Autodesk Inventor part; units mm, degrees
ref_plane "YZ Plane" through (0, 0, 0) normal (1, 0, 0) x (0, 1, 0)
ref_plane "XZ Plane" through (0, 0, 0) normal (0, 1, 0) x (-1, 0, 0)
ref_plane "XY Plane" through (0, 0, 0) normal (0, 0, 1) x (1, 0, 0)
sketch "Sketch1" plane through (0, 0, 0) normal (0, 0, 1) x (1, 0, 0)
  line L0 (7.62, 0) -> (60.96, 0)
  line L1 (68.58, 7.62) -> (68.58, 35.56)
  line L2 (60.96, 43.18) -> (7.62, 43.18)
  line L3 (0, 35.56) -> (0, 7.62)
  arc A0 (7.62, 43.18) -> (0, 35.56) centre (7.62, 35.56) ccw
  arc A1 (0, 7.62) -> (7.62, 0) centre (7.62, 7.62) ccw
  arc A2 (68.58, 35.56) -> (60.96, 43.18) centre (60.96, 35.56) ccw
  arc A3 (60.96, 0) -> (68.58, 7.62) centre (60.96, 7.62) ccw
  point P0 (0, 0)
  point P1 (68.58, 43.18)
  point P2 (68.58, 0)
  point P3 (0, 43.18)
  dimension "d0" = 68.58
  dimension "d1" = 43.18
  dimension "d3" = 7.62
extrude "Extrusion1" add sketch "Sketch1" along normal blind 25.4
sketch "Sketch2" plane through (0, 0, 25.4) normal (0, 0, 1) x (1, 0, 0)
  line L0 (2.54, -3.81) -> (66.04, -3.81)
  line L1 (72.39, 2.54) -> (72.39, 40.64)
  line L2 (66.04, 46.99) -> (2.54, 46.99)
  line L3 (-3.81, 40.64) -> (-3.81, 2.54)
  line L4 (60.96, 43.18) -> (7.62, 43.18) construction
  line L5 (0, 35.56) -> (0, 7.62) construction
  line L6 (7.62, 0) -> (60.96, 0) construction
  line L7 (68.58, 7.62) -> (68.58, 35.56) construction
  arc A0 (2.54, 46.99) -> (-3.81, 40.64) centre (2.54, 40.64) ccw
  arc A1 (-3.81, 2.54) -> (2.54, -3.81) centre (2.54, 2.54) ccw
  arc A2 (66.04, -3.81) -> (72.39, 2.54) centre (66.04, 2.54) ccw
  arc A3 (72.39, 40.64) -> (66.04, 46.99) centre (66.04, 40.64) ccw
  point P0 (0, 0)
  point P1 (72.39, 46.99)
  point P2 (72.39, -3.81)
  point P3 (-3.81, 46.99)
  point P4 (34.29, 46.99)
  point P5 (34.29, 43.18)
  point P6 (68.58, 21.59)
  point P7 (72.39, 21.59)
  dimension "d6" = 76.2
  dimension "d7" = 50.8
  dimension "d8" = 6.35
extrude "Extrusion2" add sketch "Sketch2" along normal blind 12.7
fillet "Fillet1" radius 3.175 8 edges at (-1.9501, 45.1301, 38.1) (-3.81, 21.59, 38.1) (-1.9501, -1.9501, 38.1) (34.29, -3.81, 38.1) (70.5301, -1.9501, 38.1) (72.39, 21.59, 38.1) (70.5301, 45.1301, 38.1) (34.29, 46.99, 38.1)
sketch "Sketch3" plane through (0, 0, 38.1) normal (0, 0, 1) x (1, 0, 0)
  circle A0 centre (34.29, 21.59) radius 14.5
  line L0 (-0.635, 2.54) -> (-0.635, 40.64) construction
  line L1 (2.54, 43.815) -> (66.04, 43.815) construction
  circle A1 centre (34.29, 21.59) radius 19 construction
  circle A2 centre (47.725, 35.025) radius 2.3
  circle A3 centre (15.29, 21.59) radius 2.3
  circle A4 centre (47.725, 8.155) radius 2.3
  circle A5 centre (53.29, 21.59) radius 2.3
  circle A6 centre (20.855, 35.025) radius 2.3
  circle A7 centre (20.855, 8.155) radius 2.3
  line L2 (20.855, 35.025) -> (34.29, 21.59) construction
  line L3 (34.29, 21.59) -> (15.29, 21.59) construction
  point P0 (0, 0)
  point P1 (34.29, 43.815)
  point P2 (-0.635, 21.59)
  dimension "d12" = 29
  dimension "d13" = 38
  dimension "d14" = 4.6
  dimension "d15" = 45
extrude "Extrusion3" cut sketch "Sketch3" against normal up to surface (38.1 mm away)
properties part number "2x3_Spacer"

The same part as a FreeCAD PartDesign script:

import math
import FreeCAD as App
import Part
import Sketcher
from FreeCAD import Vector
Q = App.Units.Quantity


def edges_at(feature, points):
    """Names of the edges that pass closest to the given points."""
    edges = feature.Shape.Edges
    near = lambda p: min(range(len(edges)), key=lambda i: edges[i].distToShape(Part.Vertex(*p))[0])
    return sorted({f"Edge{near(p) + 1}" for p in points})

doc = App.newDocument("Part")
body = doc.addObject("PartDesign::Body", "Body")

# Sketch on XY plane
sketch1 = doc.addObject("Sketcher::SketchObject", "Sketch")
body.addObject(sketch1)
sketch1.AttachmentSupport = (doc.XY_Plane, [""])
sketch1.MapMode = "FlatFace"
sketch1.addGeometry(Part.ArcOfCircle(Part.Circle(Vector(7.62, 7.62, 0), Vector(0, 0, 1), 7.62), math.radians(180), math.radians(270)), False)
sketch1.addGeometry(Part.LineSegment(Vector(7.62, 0, 0), Vector(60.96, 0, 0)), False)
sketch1.addGeometry(Part.ArcOfCircle(Part.Circle(Vector(60.96, 7.62, 0), Vector(0, 0, 1), 7.62), math.radians(-90), math.radians(0)), False)
sketch1.addGeometry(Part.LineSegment(Vector(68.58, 7.62, 0), Vector(68.58, 35.56, 0)), False)
sketch1.addGeometry(Part.ArcOfCircle(Part.Circle(Vector(60.96, 35.56, 0), Vector(0, 0, 1), 7.62), math.radians(0), math.radians(90)), False)
sketch1.addGeometry(Part.LineSegment(Vector(60.96, 43.18, 0), Vector(7.62, 43.18, 0)), False)
sketch1.addGeometry(Part.ArcOfCircle(Part.Circle(Vector(7.62, 35.56, 0), Vector(0, 0, 1), 7.62), math.radians(90), math.radians(180)), False)
sketch1.addGeometry(Part.LineSegment(Vector(0, 35.56, 0), Vector(0, 7.62, 0)), False)
sketch1.addConstraint(Sketcher.Constraint("Tangent", 0, 2, 1, 1))
sketch1.addConstraint(Sketcher.Constraint("Tangent", 1, 2, 2, 1))
sketch1.addConstraint(Sketcher.Constraint("Tangent", 2, 2, 3, 1))
sketch1.addConstraint(Sketcher.Constraint("Tangent", 3, 2, 4, 1))
sketch1.addConstraint(Sketcher.Constraint("Tangent", 4, 2, 5, 1))
sketch1.addConstraint(Sketcher.Constraint("Tangent", 5, 2, 6, 1))
sketch1.addConstraint(Sketcher.Constraint("Tangent", 6, 2, 7, 1))
sketch1.addConstraint(Sketcher.Constraint("Tangent", 7, 2, 0, 1))
sketch1.addConstraint(Sketcher.Constraint("Horizontal", 1))
sketch1.addConstraint(Sketcher.Constraint("Vertical", 3))
sketch1.addConstraint(Sketcher.Constraint("Horizontal", 5))
sketch1.addConstraint(Sketcher.Constraint("Vertical", 7))
sketch1.addConstraint(Sketcher.Constraint("Equal", 0, 2))
sketch1.addConstraint(Sketcher.Constraint("Equal", 2, 4))
sketch1.addConstraint(Sketcher.Constraint("Equal", 4, 6))
sketch1.addConstraint(Sketcher.Constraint("PointOnObject", 0, 2, -1))
sketch1.addConstraint(Sketcher.Constraint("PointOnObject", 6, 2, -2))
sketch1.addConstraint(Sketcher.Constraint("Radius", 0, Q("0.3 in")))
sketch1.addConstraint(Sketcher.Constraint("DistanceX", -1, 1, 2, 2, Q("2.7 in")))
sketch1.addConstraint(Sketcher.Constraint("DistanceY", -1, 1, 4, 2, Q("1.7 in")))
pad1 = doc.addObject("PartDesign::Pad", "Pad")
body.addObject(pad1)
pad1.Profile = sketch1
pad1.Length = Q("1 in")

# Sketch on XY plane
sketch2 = doc.addObject("Sketcher::SketchObject", "Sketch001")
body.addObject(sketch2)
sketch2.AttachmentSupport = (doc.XY_Plane, [""])
sketch2.MapMode = "FlatFace"
sketch2.AttachmentOffset = App.Placement(Vector(0, 0, 1 * 25.4), App.Rotation())
sketch2.addGeometry(Part.ArcOfCircle(Part.Circle(Vector(2.54, 2.54, 0), Vector(0, 0, 1), 6.35), math.radians(180), math.radians(270)), False)
sketch2.addGeometry(Part.LineSegment(Vector(2.54, -3.81, 0), Vector(66.04, -3.81, 0)), False)
sketch2.addGeometry(Part.ArcOfCircle(Part.Circle(Vector(66.04, 2.54, 0), Vector(0, 0, 1), 6.35), math.radians(-90), math.radians(0)), False)
sketch2.addGeometry(Part.LineSegment(Vector(72.39, 2.54, 0), Vector(72.39, 40.64, 0)), False)
sketch2.addGeometry(Part.ArcOfCircle(Part.Circle(Vector(66.04, 40.64, 0), Vector(0, 0, 1), 6.35), math.radians(0), math.radians(90)), False)
sketch2.addGeometry(Part.LineSegment(Vector(66.04, 46.99, 0), Vector(2.54, 46.99, 0)), False)
sketch2.addGeometry(Part.ArcOfCircle(Part.Circle(Vector(2.54, 40.64, 0), Vector(0, 0, 1), 6.35), math.radians(90), math.radians(180)), False)
sketch2.addGeometry(Part.LineSegment(Vector(-3.81, 40.64, 0), Vector(-3.81, 2.54, 0)), False)
sketch2.addConstraint(Sketcher.Constraint("Tangent", 0, 2, 1, 1))
sketch2.addConstraint(Sketcher.Constraint("Tangent", 1, 2, 2, 1))
sketch2.addConstraint(Sketcher.Constraint("Tangent", 2, 2, 3, 1))
sketch2.addConstraint(Sketcher.Constraint("Tangent", 3, 2, 4, 1))
sketch2.addConstraint(Sketcher.Constraint("Tangent", 4, 2, 5, 1))
sketch2.addConstraint(Sketcher.Constraint("Tangent", 5, 2, 6, 1))
sketch2.addConstraint(Sketcher.Constraint("Tangent", 6, 2, 7, 1))
sketch2.addConstraint(Sketcher.Constraint("Tangent", 7, 2, 0, 1))
sketch2.addConstraint(Sketcher.Constraint("Horizontal", 1))
sketch2.addConstraint(Sketcher.Constraint("Vertical", 3))
sketch2.addConstraint(Sketcher.Constraint("Horizontal", 5))
sketch2.addConstraint(Sketcher.Constraint("Vertical", 7))
sketch2.addConstraint(Sketcher.Constraint("Equal", 0, 2))
sketch2.addConstraint(Sketcher.Constraint("Equal", 2, 4))
sketch2.addConstraint(Sketcher.Constraint("Equal", 4, 6))
sketch2.addConstraint(Sketcher.Constraint("Radius", 0, Q("0.25 in")))
sketch2.addConstraint(Sketcher.Constraint("DistanceY", 1, 2, 4, 2, Q("2 in")))
sketch2.addConstraint(Sketcher.Constraint("DistanceX", 1, 1, 1, 2, Q("2.5 in")))
sketch2.addConstraint(Sketcher.Constraint("DistanceX", -1, 1, 0, 3, Q("0.1 in")))
sketch2.addConstraint(Sketcher.Constraint("DistanceY", -1, 1, 0, 3, Q("0.1 in")))
pad2 = doc.addObject("PartDesign::Pad", "Pad001")
body.addObject(pad2)
pad2.Profile = sketch2
pad2.Length = Q("0.5 in")
doc.recompute()

fillet = doc.addObject("PartDesign::Fillet", "Fillet")
body.addObject(fillet)
fillet.Base = (pad2, edges_at(pad2, [
    (-1.95, 45.13, 38.1),
    (-3.81, 21.59, 38.1),
    (-1.95, -1.95, 38.1),
    (34.29, -3.81, 38.1),
    (70.53, -1.95, 38.1),
    (72.39, 21.59, 38.1),
    (70.53, 45.13, 38.1),
    (34.29, 46.99, 38.1),
]))
fillet.Radius = Q("0.125 in")

# Sketch on XY plane
sketch3 = doc.addObject("Sketcher::SketchObject", "Sketch002")
body.addObject(sketch3)
sketch3.AttachmentSupport = (doc.XY_Plane, [""])
sketch3.MapMode = "FlatFace"
sketch3.AttachmentOffset = App.Placement(Vector(0, 0, 1.5 * 25.4), App.Rotation())
sketch3.addGeometry(Part.Circle(Vector(34.29, 21.59, 0), Vector(0, 0, 1), 14.5), False)
sketch3.addGeometry(Part.Circle(Vector(47.725, 35.025, 0), Vector(0, 0, 1), 2.3), False)
sketch3.addGeometry(Part.Circle(Vector(15.29, 21.59, 0), Vector(0, 0, 1), 2.3), False)
sketch3.addGeometry(Part.Circle(Vector(47.725, 8.155, 0), Vector(0, 0, 1), 2.3), False)
sketch3.addGeometry(Part.Circle(Vector(53.29, 21.59, 0), Vector(0, 0, 1), 2.3), False)
sketch3.addGeometry(Part.Circle(Vector(20.855, 35.025, 0), Vector(0, 0, 1), 2.3), False)
sketch3.addGeometry(Part.Circle(Vector(20.855, 8.155, 0), Vector(0, 0, 1), 2.3), False)
sketch3.addConstraint(Sketcher.Constraint("Equal", 1, 2))
sketch3.addConstraint(Sketcher.Constraint("Equal", 2, 3))
sketch3.addConstraint(Sketcher.Constraint("Equal", 3, 4))
sketch3.addConstraint(Sketcher.Constraint("Equal", 4, 5))
sketch3.addConstraint(Sketcher.Constraint("Equal", 5, 6))
sketch3.addConstraint(Sketcher.Constraint("Horizontal", 0, 3, 2, 3))
sketch3.addConstraint(Sketcher.Constraint("Horizontal", 2, 3, 4, 3))
sketch3.addConstraint(Sketcher.Constraint("Horizontal", 1, 3, 5, 3))
sketch3.addConstraint(Sketcher.Constraint("Horizontal", 3, 3, 6, 3))
sketch3.addConstraint(Sketcher.Constraint("Vertical", 1, 3, 3, 3))
sketch3.addConstraint(Sketcher.Constraint("Vertical", 5, 3, 6, 3))
sketch3.addConstraint(Sketcher.Constraint("Diameter", 1, Q("0.1811 in")))
sketch3.addConstraint(Sketcher.Constraint("Diameter", 0, 29.0))
sketch3.addConstraint(Sketcher.Constraint("DistanceX", -1, 1, 0, 3, Q("1.35 in")))
sketch3.addConstraint(Sketcher.Constraint("DistanceY", -1, 1, 0, 3, Q("0.85 in")))
sketch3.addConstraint(Sketcher.Constraint("DistanceX", 2, 3, 4, 3, 38.0))
sketch3.addConstraint(Sketcher.Constraint("DistanceX", 1, 3, 4, 3, Q("0.2191 in")))
sketch3.addConstraint(Sketcher.Constraint("DistanceX", 2, 3, 5, 3, Q("0.2191 in")))
sketch3.addConstraint(Sketcher.Constraint("DistanceX", -1, 1, 1, 3, 47.725))
sketch3.addConstraint(Sketcher.Constraint("DistanceY", -1, 1, 1, 3, 35.025))
sketch3.addConstraint(Sketcher.Constraint("DistanceY", -1, 1, 3, 3, 8.155))
pocket1 = doc.addObject("PartDesign::Pocket", "Pocket")
body.addObject(pocket1)
pocket1.Profile = sketch3
pocket1.Length = Q("1.5 in")

doc.recompute()
